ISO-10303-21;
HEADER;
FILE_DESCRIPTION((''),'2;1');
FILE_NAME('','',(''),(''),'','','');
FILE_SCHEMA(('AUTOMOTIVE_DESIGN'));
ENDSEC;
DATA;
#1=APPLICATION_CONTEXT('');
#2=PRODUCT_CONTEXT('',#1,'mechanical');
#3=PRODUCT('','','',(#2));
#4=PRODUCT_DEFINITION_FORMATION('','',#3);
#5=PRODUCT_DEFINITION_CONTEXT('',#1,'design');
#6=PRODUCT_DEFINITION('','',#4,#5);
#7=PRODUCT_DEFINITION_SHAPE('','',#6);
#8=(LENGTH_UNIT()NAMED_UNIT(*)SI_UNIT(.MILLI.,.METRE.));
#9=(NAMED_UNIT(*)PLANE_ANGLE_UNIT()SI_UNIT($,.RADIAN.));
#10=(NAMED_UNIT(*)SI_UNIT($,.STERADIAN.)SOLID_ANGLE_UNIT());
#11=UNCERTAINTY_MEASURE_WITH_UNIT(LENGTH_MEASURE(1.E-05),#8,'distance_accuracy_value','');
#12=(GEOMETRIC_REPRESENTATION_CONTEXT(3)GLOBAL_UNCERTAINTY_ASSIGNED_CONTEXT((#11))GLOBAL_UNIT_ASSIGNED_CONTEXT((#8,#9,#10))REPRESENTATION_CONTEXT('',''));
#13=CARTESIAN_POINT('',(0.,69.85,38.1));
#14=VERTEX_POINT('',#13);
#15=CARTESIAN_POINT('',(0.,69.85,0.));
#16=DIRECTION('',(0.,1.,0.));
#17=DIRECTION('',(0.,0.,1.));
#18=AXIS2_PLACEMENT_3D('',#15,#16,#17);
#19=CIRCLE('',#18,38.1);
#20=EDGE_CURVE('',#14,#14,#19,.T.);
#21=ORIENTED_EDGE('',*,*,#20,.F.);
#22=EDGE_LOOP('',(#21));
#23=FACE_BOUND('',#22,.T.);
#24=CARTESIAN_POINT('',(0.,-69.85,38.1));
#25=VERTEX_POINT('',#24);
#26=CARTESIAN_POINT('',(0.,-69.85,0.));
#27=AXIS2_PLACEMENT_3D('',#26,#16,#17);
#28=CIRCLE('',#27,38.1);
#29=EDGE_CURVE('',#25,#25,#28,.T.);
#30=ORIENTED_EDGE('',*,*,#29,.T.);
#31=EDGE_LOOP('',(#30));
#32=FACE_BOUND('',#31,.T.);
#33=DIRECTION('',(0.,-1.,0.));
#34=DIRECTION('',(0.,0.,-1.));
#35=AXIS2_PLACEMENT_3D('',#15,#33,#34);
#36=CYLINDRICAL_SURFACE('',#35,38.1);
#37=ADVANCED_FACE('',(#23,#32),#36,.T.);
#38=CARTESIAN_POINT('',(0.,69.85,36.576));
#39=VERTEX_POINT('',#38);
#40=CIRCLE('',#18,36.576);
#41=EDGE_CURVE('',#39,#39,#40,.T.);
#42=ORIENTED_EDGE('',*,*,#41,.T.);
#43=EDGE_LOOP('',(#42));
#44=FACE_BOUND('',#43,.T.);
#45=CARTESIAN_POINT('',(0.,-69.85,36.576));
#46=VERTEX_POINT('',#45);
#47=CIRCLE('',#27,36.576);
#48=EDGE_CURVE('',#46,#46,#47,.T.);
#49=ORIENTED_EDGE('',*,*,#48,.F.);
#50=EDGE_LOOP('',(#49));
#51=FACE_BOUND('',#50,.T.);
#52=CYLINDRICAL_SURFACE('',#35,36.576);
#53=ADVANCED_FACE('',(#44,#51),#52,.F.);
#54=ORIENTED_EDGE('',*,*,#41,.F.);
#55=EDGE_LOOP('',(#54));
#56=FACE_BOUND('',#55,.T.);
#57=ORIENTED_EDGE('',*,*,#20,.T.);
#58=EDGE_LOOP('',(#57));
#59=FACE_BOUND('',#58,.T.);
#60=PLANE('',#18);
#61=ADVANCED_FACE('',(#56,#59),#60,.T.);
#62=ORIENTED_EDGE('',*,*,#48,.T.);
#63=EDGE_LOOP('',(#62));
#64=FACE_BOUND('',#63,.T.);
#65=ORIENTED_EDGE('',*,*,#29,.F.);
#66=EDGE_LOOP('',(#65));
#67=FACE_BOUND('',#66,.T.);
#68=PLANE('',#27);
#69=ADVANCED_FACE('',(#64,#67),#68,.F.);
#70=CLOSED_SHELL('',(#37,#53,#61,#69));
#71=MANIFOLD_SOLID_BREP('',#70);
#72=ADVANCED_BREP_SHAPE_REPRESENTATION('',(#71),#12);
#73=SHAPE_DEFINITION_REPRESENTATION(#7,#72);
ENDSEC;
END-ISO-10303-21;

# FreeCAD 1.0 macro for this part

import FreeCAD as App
import Part
import Sketcher

V = App.Vector
Q = App.Units.Quantity

doc = App.newDocument("Part")
body = doc.addObject("PartDesign::Body", "Body")

# Sketch on XZ plane
sketch1 = body.newObject("Sketcher::SketchObject", "Sketch")
sketch1.AttachmentSupport = (doc.getObject("XZ_Plane"), [""])
sketch1.MapMode = "FlatFace"
sketch1.addGeometry([
    Part.Circle(V(0, 0, 0), V(0, 0, 1), 38),
    Part.Circle(V(0, 0, 0), V(0, 0, 1), 37),
], False)
sketch1.addConstraint([
    Sketcher.Constraint("Coincident", 0, 3, -1, 1),
    Sketcher.Constraint("Coincident", 1, 3, -1, 1),
    Sketcher.Constraint("Diameter", 0, Q("3 in")),
    Sketcher.Constraint("Diameter", 1, Q("2.88 in")),
])
pad1 = body.newObject("PartDesign::Pad", "Pad")
pad1.Profile = sketch1
pad1.Length = Q("5.5 in")
pad1.Midplane = True

doc.recompute()
